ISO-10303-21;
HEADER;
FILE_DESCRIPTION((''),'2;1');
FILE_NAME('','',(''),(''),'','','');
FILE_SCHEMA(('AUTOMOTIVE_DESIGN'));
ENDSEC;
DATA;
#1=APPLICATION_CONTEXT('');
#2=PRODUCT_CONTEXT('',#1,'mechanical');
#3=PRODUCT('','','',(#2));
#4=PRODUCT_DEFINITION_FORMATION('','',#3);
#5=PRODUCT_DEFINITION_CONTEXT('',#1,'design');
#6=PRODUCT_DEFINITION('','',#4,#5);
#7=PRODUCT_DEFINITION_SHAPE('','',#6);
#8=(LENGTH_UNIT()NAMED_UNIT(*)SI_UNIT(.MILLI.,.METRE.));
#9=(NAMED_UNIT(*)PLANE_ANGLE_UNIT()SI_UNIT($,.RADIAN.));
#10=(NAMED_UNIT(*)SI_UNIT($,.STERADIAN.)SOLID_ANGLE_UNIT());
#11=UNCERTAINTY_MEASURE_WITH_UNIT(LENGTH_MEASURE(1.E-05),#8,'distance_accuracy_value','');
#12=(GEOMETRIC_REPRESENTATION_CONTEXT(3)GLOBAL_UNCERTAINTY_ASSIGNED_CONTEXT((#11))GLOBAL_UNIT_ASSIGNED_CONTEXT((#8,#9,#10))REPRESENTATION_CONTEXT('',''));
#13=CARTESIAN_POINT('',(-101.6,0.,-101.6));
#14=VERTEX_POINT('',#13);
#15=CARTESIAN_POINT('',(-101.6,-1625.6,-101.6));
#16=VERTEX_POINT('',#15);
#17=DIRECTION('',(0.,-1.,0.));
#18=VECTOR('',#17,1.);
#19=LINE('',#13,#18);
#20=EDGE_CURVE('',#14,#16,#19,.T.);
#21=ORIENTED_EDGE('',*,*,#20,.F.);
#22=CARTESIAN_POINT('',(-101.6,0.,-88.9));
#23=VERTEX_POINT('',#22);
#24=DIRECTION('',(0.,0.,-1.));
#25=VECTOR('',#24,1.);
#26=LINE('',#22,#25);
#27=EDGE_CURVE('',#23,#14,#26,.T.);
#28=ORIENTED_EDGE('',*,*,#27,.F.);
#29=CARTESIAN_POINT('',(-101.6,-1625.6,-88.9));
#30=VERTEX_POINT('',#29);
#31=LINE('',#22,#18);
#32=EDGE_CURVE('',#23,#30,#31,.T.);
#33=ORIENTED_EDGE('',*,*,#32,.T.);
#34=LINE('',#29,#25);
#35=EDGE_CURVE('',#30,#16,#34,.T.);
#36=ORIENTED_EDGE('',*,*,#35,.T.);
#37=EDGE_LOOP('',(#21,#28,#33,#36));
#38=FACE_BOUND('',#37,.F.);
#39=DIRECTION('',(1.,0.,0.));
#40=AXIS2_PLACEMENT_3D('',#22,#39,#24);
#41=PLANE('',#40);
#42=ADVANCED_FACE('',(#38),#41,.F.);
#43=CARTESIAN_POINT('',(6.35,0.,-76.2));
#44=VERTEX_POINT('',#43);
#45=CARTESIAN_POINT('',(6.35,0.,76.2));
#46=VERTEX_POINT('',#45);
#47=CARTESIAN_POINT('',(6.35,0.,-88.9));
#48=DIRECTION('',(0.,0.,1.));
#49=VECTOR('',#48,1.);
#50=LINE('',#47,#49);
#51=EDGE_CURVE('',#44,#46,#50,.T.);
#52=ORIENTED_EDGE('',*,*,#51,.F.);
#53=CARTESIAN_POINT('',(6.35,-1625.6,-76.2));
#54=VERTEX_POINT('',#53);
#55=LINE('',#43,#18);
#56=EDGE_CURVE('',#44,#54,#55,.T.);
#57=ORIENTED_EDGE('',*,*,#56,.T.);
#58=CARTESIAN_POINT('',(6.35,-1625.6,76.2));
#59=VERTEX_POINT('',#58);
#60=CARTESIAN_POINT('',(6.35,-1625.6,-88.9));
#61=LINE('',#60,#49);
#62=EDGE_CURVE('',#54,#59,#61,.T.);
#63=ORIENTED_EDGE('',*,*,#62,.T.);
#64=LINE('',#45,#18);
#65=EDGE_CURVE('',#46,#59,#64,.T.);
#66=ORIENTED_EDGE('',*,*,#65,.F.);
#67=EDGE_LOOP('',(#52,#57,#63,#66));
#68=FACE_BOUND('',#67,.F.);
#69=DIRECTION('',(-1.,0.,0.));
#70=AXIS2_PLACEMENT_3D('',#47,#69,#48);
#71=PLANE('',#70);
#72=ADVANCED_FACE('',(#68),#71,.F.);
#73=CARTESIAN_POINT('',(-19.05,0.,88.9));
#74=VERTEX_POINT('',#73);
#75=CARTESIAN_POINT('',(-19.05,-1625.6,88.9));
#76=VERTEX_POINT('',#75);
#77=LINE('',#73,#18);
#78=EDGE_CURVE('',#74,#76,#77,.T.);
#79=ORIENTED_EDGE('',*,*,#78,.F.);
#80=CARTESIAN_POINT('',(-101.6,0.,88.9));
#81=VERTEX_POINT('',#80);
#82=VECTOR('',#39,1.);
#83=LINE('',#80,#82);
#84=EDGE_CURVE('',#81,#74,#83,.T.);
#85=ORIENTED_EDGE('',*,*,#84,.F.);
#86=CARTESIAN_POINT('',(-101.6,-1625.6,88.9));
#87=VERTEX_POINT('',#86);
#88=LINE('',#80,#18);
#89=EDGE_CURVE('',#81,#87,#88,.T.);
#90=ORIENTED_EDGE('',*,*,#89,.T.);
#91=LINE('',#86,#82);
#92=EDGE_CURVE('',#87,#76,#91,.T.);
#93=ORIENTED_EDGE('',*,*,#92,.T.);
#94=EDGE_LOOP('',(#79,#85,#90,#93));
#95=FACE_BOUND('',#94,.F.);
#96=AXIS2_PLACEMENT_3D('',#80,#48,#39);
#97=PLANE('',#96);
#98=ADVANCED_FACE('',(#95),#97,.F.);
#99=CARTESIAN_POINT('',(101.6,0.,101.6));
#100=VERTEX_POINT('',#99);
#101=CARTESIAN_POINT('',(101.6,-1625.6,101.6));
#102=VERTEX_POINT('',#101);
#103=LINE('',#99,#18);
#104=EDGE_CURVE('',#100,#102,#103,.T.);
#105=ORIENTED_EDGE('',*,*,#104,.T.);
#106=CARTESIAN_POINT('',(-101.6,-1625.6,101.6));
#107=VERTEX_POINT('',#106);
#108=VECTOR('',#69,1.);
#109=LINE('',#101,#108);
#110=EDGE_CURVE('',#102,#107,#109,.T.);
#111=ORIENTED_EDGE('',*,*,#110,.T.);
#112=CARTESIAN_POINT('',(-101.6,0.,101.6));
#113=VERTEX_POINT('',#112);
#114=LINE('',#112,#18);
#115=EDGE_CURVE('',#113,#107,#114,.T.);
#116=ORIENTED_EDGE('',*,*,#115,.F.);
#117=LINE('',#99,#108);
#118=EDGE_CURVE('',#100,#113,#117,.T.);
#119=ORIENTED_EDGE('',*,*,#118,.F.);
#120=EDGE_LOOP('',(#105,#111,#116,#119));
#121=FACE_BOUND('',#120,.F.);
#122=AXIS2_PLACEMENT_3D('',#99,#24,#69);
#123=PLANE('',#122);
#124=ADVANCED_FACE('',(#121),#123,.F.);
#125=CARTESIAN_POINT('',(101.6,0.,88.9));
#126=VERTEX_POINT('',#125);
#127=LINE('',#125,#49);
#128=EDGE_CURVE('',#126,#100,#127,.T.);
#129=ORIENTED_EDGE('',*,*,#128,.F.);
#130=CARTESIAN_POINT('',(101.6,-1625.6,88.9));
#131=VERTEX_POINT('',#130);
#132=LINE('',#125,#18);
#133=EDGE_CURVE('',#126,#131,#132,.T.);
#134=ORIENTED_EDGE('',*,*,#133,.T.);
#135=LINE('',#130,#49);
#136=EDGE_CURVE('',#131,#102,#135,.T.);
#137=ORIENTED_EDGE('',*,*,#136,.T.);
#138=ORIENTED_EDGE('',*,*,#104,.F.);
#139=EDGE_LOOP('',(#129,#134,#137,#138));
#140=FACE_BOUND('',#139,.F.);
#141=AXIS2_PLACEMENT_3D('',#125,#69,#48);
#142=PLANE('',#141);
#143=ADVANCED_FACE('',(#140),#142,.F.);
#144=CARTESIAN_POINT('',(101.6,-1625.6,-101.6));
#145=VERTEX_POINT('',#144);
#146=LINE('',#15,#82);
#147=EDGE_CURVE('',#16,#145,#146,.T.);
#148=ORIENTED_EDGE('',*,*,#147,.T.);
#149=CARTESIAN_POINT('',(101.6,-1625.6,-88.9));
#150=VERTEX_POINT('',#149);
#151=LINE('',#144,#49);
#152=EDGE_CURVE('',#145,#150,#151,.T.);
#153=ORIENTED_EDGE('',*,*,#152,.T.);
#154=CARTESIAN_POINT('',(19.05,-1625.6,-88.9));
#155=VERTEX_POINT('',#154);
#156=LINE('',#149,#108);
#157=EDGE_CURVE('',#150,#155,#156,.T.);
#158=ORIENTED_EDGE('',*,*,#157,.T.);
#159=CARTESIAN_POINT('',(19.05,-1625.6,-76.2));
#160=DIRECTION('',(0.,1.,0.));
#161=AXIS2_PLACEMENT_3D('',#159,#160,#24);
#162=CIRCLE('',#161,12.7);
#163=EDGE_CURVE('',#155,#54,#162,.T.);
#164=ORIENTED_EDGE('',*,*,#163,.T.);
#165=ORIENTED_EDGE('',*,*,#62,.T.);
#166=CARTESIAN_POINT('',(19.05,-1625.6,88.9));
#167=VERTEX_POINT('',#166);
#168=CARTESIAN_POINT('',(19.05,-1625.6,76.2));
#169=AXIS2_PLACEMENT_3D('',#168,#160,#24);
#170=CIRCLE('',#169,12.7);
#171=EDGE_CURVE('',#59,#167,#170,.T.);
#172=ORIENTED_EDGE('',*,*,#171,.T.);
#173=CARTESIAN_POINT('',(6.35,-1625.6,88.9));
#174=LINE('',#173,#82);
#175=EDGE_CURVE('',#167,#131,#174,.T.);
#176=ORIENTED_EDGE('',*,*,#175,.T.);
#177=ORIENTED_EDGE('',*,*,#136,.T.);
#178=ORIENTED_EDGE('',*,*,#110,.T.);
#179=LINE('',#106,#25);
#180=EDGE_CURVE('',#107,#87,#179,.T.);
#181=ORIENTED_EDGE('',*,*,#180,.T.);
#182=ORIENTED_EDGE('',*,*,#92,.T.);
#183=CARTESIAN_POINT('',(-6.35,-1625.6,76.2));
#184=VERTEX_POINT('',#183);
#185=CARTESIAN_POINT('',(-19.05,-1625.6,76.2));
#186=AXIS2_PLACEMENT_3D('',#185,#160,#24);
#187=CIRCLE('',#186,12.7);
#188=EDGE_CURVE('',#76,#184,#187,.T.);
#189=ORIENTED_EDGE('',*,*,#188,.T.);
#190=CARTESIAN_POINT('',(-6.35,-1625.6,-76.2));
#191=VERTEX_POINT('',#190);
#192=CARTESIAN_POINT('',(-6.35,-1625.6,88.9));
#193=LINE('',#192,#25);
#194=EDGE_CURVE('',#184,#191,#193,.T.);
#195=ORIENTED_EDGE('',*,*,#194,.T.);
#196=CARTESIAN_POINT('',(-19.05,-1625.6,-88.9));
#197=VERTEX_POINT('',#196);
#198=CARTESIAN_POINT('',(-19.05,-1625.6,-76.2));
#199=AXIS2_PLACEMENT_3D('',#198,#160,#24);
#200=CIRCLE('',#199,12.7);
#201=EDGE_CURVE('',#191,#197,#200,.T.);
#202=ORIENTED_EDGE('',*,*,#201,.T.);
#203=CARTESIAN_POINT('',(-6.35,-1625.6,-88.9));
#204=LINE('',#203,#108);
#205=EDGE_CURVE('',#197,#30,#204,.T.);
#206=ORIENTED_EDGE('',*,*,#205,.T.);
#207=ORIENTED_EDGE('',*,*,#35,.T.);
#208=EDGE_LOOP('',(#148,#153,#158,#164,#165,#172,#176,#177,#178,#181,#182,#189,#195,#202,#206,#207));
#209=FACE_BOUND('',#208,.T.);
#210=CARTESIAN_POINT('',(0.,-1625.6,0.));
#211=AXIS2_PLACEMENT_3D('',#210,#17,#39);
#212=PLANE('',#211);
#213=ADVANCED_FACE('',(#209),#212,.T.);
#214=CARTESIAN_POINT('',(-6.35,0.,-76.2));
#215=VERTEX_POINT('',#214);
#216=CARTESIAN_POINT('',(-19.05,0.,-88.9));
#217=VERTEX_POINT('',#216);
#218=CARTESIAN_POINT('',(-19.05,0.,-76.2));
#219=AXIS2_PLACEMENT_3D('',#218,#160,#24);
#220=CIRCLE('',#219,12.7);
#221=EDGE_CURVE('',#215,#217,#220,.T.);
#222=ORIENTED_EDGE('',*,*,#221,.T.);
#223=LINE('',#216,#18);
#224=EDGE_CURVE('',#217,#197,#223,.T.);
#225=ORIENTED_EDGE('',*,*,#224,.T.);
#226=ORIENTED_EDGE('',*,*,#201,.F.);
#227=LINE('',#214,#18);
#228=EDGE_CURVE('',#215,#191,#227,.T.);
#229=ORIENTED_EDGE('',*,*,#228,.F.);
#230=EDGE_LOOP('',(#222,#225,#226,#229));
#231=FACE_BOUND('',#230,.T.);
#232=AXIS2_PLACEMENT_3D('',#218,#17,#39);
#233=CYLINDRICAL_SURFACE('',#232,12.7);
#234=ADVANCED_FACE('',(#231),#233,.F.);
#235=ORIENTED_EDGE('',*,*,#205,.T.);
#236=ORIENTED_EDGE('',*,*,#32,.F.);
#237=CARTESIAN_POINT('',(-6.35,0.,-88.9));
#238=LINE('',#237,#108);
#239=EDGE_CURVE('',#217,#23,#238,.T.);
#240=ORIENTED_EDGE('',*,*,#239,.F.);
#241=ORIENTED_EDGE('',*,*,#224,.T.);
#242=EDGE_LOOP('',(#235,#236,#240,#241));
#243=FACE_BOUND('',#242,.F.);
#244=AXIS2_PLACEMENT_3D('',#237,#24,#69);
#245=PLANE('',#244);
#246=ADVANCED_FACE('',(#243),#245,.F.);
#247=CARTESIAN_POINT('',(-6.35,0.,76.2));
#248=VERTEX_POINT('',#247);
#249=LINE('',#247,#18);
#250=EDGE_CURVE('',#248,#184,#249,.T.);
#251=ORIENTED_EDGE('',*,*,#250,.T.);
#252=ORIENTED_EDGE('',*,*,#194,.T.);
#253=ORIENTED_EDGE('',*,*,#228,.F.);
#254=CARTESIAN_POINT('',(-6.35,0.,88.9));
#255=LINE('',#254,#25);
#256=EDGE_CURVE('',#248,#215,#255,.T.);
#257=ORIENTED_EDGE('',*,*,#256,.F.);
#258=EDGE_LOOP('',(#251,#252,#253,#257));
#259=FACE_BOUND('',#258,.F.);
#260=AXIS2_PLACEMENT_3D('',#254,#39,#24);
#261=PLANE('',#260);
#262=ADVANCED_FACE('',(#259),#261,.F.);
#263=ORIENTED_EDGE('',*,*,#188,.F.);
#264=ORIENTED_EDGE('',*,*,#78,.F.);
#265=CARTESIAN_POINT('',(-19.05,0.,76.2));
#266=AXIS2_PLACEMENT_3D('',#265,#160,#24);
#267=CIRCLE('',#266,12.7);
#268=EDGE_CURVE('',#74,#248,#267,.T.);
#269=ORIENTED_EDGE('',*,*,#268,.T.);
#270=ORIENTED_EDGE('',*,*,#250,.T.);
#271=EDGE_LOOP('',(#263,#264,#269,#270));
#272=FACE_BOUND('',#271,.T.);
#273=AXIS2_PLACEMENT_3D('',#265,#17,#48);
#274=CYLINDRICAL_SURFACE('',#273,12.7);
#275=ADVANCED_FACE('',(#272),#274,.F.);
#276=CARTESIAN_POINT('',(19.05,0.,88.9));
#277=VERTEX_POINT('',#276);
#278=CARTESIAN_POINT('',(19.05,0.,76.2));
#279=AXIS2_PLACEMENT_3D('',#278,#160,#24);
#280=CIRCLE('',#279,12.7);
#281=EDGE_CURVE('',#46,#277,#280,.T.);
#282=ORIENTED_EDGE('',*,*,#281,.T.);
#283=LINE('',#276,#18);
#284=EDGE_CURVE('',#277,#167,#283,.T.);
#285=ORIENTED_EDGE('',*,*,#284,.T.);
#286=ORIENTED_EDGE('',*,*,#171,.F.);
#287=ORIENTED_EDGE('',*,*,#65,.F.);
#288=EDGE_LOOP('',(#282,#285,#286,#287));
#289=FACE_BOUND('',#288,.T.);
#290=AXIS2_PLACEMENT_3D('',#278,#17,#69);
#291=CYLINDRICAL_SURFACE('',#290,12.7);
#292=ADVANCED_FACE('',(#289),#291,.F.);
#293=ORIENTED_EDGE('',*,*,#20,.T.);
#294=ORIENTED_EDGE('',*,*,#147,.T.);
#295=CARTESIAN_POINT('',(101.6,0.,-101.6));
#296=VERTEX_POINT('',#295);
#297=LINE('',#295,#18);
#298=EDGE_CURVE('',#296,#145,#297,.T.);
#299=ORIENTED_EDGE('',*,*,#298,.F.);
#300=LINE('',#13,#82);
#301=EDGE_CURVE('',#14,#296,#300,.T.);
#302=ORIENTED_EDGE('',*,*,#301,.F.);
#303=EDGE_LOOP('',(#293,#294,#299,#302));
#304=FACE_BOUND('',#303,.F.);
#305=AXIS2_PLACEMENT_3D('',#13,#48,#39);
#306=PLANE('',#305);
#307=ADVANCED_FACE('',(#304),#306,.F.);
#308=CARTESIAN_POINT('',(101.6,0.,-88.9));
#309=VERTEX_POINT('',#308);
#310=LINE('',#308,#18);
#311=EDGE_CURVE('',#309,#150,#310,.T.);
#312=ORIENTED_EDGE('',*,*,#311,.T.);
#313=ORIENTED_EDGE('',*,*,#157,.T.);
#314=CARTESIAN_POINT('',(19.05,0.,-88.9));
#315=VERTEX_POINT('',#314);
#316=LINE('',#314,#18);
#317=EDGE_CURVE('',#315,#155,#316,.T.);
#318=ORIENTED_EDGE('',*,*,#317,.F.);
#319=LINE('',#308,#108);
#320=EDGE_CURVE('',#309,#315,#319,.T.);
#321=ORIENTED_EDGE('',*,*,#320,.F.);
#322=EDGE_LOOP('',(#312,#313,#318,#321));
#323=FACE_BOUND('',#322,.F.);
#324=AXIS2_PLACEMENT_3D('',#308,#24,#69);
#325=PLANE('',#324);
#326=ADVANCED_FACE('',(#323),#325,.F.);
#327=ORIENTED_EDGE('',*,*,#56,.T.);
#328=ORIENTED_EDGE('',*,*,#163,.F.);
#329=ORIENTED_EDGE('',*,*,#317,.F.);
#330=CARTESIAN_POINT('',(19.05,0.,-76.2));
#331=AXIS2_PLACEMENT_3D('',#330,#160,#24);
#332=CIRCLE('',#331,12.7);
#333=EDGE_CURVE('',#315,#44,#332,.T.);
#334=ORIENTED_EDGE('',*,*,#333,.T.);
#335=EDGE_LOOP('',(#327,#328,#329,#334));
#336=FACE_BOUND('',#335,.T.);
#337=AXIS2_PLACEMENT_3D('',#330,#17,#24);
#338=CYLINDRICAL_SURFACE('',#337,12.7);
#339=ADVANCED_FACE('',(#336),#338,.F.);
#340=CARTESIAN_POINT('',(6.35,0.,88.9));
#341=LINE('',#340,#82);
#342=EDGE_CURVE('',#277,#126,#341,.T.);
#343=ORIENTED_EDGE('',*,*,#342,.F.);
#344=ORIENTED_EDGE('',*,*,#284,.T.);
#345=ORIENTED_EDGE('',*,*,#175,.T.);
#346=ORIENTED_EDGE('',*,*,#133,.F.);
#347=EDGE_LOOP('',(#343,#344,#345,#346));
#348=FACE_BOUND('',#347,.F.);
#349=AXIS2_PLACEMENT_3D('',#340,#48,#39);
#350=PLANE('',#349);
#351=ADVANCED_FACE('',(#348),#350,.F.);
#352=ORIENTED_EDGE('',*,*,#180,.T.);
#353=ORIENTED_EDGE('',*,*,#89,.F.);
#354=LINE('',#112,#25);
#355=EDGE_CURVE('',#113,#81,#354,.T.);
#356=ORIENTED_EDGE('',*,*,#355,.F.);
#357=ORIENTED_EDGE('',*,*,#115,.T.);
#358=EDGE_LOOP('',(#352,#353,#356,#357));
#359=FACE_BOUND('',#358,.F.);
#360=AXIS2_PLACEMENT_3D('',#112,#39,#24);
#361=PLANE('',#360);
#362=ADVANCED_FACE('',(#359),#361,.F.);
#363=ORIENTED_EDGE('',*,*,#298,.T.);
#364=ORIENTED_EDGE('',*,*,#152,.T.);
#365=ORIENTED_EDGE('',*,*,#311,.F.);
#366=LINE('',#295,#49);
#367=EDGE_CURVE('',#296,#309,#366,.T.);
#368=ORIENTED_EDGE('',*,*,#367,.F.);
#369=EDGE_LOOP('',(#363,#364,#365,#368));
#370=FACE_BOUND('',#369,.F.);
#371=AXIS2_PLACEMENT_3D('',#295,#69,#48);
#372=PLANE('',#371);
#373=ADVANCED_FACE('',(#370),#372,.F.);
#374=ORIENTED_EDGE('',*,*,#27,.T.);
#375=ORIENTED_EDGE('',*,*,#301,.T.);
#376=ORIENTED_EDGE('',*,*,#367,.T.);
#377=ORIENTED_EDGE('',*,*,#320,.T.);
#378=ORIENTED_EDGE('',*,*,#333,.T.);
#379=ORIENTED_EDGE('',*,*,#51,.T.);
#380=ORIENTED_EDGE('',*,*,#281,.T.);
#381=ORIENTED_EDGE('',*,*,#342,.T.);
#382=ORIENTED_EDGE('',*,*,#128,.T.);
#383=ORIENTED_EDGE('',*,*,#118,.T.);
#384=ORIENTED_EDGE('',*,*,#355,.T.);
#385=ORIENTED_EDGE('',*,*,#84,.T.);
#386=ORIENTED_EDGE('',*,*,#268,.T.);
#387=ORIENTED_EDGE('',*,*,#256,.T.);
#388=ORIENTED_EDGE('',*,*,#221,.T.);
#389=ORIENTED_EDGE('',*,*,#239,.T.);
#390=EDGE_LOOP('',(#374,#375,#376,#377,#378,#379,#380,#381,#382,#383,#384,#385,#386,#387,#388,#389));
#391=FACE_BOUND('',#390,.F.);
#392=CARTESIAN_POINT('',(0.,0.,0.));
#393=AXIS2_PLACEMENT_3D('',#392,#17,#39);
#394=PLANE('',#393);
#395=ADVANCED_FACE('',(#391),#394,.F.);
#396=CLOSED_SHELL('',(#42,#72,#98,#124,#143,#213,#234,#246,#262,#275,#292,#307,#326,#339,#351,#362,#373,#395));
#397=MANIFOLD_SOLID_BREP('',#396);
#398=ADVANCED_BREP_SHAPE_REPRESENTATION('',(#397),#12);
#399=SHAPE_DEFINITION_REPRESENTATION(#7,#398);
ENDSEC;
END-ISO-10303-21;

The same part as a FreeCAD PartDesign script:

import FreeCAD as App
import Part
import Sketcher

V = App.Vector
Q = App.Units.Quantity


def edges_at(feature, points):
    """Names of the edges that pass closest to the given points."""
    edges = feature.Shape.Edges
    near = lambda p: min(range(len(edges)), key=lambda i: edges[i].distToShape(Part.Vertex(*p))[0])
    return sorted({f"Edge{near(p) + 1}" for p in points})

doc = App.newDocument("Part")
body = doc.addObject("PartDesign::Body", "Body")

# Sketch on XZ plane
sketch1 = body.newObject("Sketcher::SketchObject", "Sketch")
sketch1.AttachmentSupport = (doc.getObject("XZ_Plane"), [""])
sketch1.MapMode = "FlatFace"
sketch1.addGeometry(Part.LineSegment(V(101.6, -101.6, 0), V(101.6, -88.9, 0)), False)
sketch1.addGeometry(Part.LineSegment(V(101.6, -88.9, 0), V(6.35, -88.9, 0)), False)
sketch1.addGeometry(Part.LineSegment(V(6.35, -88.9, 0), V(6.35, 88.9, 0)), False)
sketch1.addGeometry(Part.LineSegment(V(6.35, 88.9, 0), V(101.6, 88.9, 0)), False)
sketch1.addGeometry(Part.LineSegment(V(101.6, 88.9, 0), V(101.6, 101.6, 0)), False)
sketch1.addGeometry(Part.LineSegment(V(101.6, 101.6, 0), V(-101.6, 101.6, 0)), False)
sketch1.addGeometry(Part.LineSegment(V(-101.6, 101.6, 0), V(-101.6, 88.9, 0)), False)
sketch1.addGeometry(Part.LineSegment(V(-101.6, 88.9, 0), V(-6.35, 88.9, 0)), False)
sketch1.addGeometry(Part.LineSegment(V(-6.35, 88.9, 0), V(-6.35, -88.9, 0)), False)
sketch1.addGeometry(Part.LineSegment(V(-6.35, -88.9, 0), V(-101.6, -88.9, 0)), False)
sketch1.addGeometry(Part.LineSegment(V(-101.6, -88.9, 0), V(-101.6, -101.6, 0)), False)
sketch1.addGeometry(Part.LineSegment(V(-101.6, -101.6, 0), V(101.6, -101.6, 0)), False)
sketch1.addConstraint(Sketcher.Constraint("Coincident", 0, 2, 1, 1))
sketch1.addConstraint(Sketcher.Constraint("Coincident", 1, 2, 2, 1))
sketch1.addConstraint(Sketcher.Constraint("Coincident", 2, 2, 3, 1))
sketch1.addConstraint(Sketcher.Constraint("Coincident", 3, 2, 4, 1))
sketch1.addConstraint(Sketcher.Constraint("Coincident", 4, 2, 5, 1))
sketch1.addConstraint(Sketcher.Constraint("Coincident", 5, 2, 6, 1))
sketch1.addConstraint(Sketcher.Constraint("Coincident", 6, 2, 7, 1))
sketch1.addConstraint(Sketcher.Constraint("Coincident", 7, 2, 8, 1))
sketch1.addConstraint(Sketcher.Constraint("Coincident", 8, 2, 9, 1))
sketch1.addConstraint(Sketcher.Constraint("Coincident", 9, 2, 10, 1))
sketch1.addConstraint(Sketcher.Constraint("Coincident", 10, 2, 11, 1))
sketch1.addConstraint(Sketcher.Constraint("Coincident", 11, 2, 0, 1))
sketch1.addConstraint(Sketcher.Constraint("Vertical", 0))
sketch1.addConstraint(Sketcher.Constraint("Horizontal", 1))
sketch1.addConstraint(Sketcher.Constraint("Vertical", 2))
sketch1.addConstraint(Sketcher.Constraint("Horizontal", 3))
sketch1.addConstraint(Sketcher.Constraint("Vertical", 4))
sketch1.addConstraint(Sketcher.Constraint("Horizontal", 5))
sketch1.addConstraint(Sketcher.Constraint("Vertical", 6))
sketch1.addConstraint(Sketcher.Constraint("Horizontal", 7))
sketch1.addConstraint(Sketcher.Constraint("Vertical", 8))
sketch1.addConstraint(Sketcher.Constraint("Horizontal", 9))
sketch1.addConstraint(Sketcher.Constraint("Vertical", 10))
sketch1.addConstraint(Sketcher.Constraint("Horizontal", 11))
sketch1.addConstraint(Sketcher.Constraint("Symmetric", 0, 2, 6, 2, -1, 1))
sketch1.addConstraint(Sketcher.Constraint("Symmetric", 2, 2, 8, 2, -1, 1))
sketch1.addConstraint(Sketcher.Constraint("Symmetric", 4, 2, 10, 2, -1, 1))
sketch1.addConstraint(Sketcher.Constraint("Symmetric", 3, 2, 6, 2, -2))
sketch1.addConstraint(Sketcher.Constraint("DistanceX", 5, 2, 5, 1, Q("8 in")))
sketch1.addConstraint(Sketcher.Constraint("DistanceY", 2, 1, 2, 2, Q("7 in")))
sketch1.addConstraint(Sketcher.Constraint("DistanceY", 0, 1, 0, 2, Q("0.5 in")))
sketch1.addConstraint(Sketcher.Constraint("DistanceX", 1, 2, 1, 1, Q("3.75 in")))
pad1 = body.newObject("PartDesign::Pad", "Pad")
pad1.Profile = sketch1
pad1.Length = Q("64 in")
doc.recompute()

fillet = body.newObject("PartDesign::Fillet", "Fillet")
fillet.Base = (pad1, edges_at(pad1, [
    (-6.35, -812.8, -88.9),
    (6.35, -812.8, -88.9),
    (6.35, -812.8, 88.9),
    (-6.35, -812.8, 88.9),
]))
fillet.Radius = Q("0.5 in")

doc.recompute()
